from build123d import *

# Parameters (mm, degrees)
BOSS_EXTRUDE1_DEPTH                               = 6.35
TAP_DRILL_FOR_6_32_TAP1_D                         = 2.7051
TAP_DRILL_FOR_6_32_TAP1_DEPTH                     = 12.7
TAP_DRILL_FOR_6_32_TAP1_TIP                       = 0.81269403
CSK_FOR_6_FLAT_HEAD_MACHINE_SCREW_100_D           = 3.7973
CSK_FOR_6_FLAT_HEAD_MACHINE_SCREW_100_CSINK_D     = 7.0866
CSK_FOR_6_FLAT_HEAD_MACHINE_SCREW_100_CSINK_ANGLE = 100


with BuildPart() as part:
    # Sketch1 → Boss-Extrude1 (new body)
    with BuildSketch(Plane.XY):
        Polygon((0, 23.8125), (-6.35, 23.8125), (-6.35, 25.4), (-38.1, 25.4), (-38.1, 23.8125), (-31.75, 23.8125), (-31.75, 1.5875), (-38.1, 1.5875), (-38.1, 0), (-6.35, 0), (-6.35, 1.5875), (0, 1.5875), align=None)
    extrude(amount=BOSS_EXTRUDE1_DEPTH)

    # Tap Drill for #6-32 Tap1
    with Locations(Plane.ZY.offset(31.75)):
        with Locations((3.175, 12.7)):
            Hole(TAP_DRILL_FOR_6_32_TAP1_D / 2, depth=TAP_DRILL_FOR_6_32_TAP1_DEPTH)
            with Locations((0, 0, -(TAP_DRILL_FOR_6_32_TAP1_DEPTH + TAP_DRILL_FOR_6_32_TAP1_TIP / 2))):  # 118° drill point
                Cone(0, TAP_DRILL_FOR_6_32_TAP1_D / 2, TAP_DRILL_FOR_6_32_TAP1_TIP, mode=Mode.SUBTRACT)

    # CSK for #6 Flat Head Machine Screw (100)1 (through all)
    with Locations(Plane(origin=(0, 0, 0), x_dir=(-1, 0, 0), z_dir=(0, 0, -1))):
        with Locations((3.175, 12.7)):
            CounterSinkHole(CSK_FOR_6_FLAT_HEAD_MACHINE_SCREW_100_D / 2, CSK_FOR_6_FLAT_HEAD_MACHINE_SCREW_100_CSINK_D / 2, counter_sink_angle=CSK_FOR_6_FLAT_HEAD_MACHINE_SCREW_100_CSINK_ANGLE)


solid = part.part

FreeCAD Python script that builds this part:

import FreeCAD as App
import Part
import Sketcher
Q = App.Units.Quantity

doc = App.newDocument("Part")
body = doc.addObject("PartDesign::Body", "Body")

# Sketch on XY plane
sketch1 = body.newObject("Sketcher::SketchObject", "Sketch")
sketch1.AttachmentSupport = (doc.getObject("XY_Plane"), [""])
sketch1.MapMode = "FlatFace"
sketch1.addGeometry(Part.LineSegment(App.Vector(0, 23.8, 0), App.Vector(-6.3, 23.8, 0)), False)
sketch1.addGeometry(Part.LineSegment(App.Vector(-6.3, 23.8, 0), App.Vector(-6.3, 25.4, 0)), False)
sketch1.addGeometry(Part.LineSegment(App.Vector(-6.3, 25.4, 0), App.Vector(-38.1, 25.4, 0)), False)
sketch1.addGeometry(Part.LineSegment(App.Vector(-38.1, 25.4, 0), App.Vector(-38.1, 23.8, 0)), False)
sketch1.addGeometry(Part.LineSegment(App.Vector(-38.1, 23.8, 0), App.Vector(-31.8, 23.8, 0)), False)
sketch1.addGeometry(Part.LineSegment(App.Vector(-31.8, 23.8, 0), App.Vector(-31.8, 1.6, 0)), False)
sketch1.addGeometry(Part.LineSegment(App.Vector(-31.8, 1.6, 0), App.Vector(-38.1, 1.6, 0)), False)
sketch1.addGeometry(Part.LineSegment(App.Vector(-38.1, 1.6, 0), App.Vector(-38.1, 0, 0)), False)
sketch1.addGeometry(Part.LineSegment(App.Vector(-38.1, 0, 0), App.Vector(-6.3, 0, 0)), False)
sketch1.addGeometry(Part.LineSegment(App.Vector(-6.3, 0, 0), App.Vector(-6.3, 1.6, 0)), False)
sketch1.addGeometry(Part.LineSegment(App.Vector(-6.3, 1.6, 0), App.Vector(0, 1.6, 0)), False)
sketch1.addGeometry(Part.LineSegment(App.Vector(0, 1.6, 0), App.Vector(0, 23.8, 0)), False)
sketch1.addConstraint(Sketcher.Constraint("Coincident", 0, 2, 1, 1))
sketch1.addConstraint(Sketcher.Constraint("Coincident", 1, 2, 2, 1))
sketch1.addConstraint(Sketcher.Constraint("Coincident", 2, 2, 3, 1))
sketch1.addConstraint(Sketcher.Constraint("Coincident", 3, 2, 4, 1))
sketch1.addConstraint(Sketcher.Constraint("Coincident", 4, 2, 5, 1))
sketch1.addConstraint(Sketcher.Constraint("Coincident", 5, 2, 6, 1))
sketch1.addConstraint(Sketcher.Constraint("Coincident", 6, 2, 7, 1))
sketch1.addConstraint(Sketcher.Constraint("Coincident", 7, 2, 8, 1))
sketch1.addConstraint(Sketcher.Constraint("Coincident", 8, 2, 9, 1))
sketch1.addConstraint(Sketcher.Constraint("Coincident", 9, 2, 10, 1))
sketch1.addConstraint(Sketcher.Constraint("Coincident", 10, 2, 11, 1))
sketch1.addConstraint(Sketcher.Constraint("Coincident", 11, 2, 0, 1))
sketch1.addConstraint(Sketcher.Constraint("Horizontal", 0))
sketch1.addConstraint(Sketcher.Constraint("Vertical", 1))
sketch1.addConstraint(Sketcher.Constraint("Horizontal", 2))
sketch1.addConstraint(Sketcher.Constraint("Vertical", 3))
sketch1.addConstraint(Sketcher.Constraint("Horizontal", 4))
sketch1.addConstraint(Sketcher.Constraint("Vertical", 5))
sketch1.addConstraint(Sketcher.Constraint("Horizontal", 6))
sketch1.addConstraint(Sketcher.Constraint("Vertical", 7))
sketch1.addConstraint(Sketcher.Constraint("Horizontal", 8))
sketch1.addConstraint(Sketcher.Constraint("Vertical", 9))
sketch1.addConstraint(Sketcher.Constraint("Horizontal", 10))
sketch1.addConstraint(Sketcher.Constraint("Vertical", 11))
sketch1.addConstraint(Sketcher.Constraint("PointOnObject", 7, 2, -1))
sketch1.addConstraint(Sketcher.Constraint("PointOnObject", 10, 2, -2))
sketch1.addConstraint(Sketcher.Constraint("Horizontal", 0, 2, 3, 2))
sketch1.addConstraint(Sketcher.Constraint("Horizontal", 6, 2, 9, 2))
sketch1.addConstraint(Sketcher.Constraint("Vertical", 3, 2, 6, 2))
sketch1.addConstraint(Sketcher.Constraint("Vertical", 1, 2, 8, 2))
sketch1.addConstraint(Sketcher.Constraint("Equal", 0, 4))
sketch1.addConstraint(Sketcher.Constraint("Equal", 3, 7))
sketch1.addConstraint(Sketcher.Constraint("DistanceY", -1, 1, 1, 2, Q("1 in")))
sketch1.addConstraint(Sketcher.Constraint("DistanceX", 4, 2, 0, 2, Q("1 in")))
sketch1.addConstraint(Sketcher.Constraint("DistanceX", 0, 2, 0, 1, Q("0.25 in")))
sketch1.addConstraint(Sketcher.Constraint("DistanceY", 1, 1, 1, 2, Q("0.0625 in")))
pad1 = body.newObject("PartDesign::Pad", "Pad")
pad1.Profile = sketch1
pad1.Length = Q("0.25 in")

# Sketch on YZ plane
sketch2 = body.newObject("Sketcher::SketchObject", "Sketch001")
sketch2.AttachmentSupport = (doc.getObject("YZ_Plane"), [""])
sketch2.MapMode = "FlatFace"
sketch2.AttachmentOffset = App.Placement(App.Vector(0, 0, -1.25 * 25.4), App.Rotation())
sketch2.addGeometry(Part.Circle(App.Vector(12.7, 3.2, 0), App.Vector(0, 0, 1), 1.4), False)
sketch2.addConstraint(Sketcher.Constraint("Diameter", 0, Q("0.1065 in")))
sketch2.addConstraint(Sketcher.Constraint("DistanceX", -1, 1, 0, 3, Q("0.5 in")))
sketch2.addConstraint(Sketcher.Constraint("DistanceY", -1, 1, 0, 3, Q("0.125 in")))
doc.recompute()
hole = body.newObject("PartDesign::Hole", "Hole")
hole.Profile = sketch2
hole.ThreadType = "None"
hole.Diameter = Q("0.1065 in")
hole.DepthType = "Dimension"
hole.Depth = Q("0.5 in")
hole.DrillPoint = "Angled"
hole.DrillPointAngle = 118
hole.Reversed = True

# Sketch on XY plane
sketch3 = body.newObject("Sketcher::SketchObject", "Sketch002")
sketch3.AttachmentSupport = (doc.getObject("XY_Plane"), [""])
sketch3.MapMode = "FlatFace"
sketch3.addGeometry(Part.Circle(App.Vector(-3.2, 12.7, 0), App.Vector(0, 0, 1), 1.9), False)
sketch3.addConstraint(Sketcher.Constraint("Diameter", 0, Q("0.1495 in")))
sketch3.addConstraint(Sketcher.Constraint("DistanceY", -1, 1, 0, 3, Q("0.5 in")))
sketch3.addConstraint(Sketcher.Constraint("DistanceX", 0, 3, -1, 1, Q("0.125 in")))
doc.recompute()
hole2 = body.newObject("PartDesign::Hole", "Hole001")
hole2.Profile = sketch3
hole2.ThreadType = "None"
hole2.Diameter = Q("0.1495 in")
hole2.DepthType = "ThroughAll"
hole2.HoleCutType = "Countersink"
hole2.HoleCutDiameter = Q("0.279 in")
hole2.HoleCutCountersinkAngle = 100
hole2.Reversed = True

doc.recompute()
